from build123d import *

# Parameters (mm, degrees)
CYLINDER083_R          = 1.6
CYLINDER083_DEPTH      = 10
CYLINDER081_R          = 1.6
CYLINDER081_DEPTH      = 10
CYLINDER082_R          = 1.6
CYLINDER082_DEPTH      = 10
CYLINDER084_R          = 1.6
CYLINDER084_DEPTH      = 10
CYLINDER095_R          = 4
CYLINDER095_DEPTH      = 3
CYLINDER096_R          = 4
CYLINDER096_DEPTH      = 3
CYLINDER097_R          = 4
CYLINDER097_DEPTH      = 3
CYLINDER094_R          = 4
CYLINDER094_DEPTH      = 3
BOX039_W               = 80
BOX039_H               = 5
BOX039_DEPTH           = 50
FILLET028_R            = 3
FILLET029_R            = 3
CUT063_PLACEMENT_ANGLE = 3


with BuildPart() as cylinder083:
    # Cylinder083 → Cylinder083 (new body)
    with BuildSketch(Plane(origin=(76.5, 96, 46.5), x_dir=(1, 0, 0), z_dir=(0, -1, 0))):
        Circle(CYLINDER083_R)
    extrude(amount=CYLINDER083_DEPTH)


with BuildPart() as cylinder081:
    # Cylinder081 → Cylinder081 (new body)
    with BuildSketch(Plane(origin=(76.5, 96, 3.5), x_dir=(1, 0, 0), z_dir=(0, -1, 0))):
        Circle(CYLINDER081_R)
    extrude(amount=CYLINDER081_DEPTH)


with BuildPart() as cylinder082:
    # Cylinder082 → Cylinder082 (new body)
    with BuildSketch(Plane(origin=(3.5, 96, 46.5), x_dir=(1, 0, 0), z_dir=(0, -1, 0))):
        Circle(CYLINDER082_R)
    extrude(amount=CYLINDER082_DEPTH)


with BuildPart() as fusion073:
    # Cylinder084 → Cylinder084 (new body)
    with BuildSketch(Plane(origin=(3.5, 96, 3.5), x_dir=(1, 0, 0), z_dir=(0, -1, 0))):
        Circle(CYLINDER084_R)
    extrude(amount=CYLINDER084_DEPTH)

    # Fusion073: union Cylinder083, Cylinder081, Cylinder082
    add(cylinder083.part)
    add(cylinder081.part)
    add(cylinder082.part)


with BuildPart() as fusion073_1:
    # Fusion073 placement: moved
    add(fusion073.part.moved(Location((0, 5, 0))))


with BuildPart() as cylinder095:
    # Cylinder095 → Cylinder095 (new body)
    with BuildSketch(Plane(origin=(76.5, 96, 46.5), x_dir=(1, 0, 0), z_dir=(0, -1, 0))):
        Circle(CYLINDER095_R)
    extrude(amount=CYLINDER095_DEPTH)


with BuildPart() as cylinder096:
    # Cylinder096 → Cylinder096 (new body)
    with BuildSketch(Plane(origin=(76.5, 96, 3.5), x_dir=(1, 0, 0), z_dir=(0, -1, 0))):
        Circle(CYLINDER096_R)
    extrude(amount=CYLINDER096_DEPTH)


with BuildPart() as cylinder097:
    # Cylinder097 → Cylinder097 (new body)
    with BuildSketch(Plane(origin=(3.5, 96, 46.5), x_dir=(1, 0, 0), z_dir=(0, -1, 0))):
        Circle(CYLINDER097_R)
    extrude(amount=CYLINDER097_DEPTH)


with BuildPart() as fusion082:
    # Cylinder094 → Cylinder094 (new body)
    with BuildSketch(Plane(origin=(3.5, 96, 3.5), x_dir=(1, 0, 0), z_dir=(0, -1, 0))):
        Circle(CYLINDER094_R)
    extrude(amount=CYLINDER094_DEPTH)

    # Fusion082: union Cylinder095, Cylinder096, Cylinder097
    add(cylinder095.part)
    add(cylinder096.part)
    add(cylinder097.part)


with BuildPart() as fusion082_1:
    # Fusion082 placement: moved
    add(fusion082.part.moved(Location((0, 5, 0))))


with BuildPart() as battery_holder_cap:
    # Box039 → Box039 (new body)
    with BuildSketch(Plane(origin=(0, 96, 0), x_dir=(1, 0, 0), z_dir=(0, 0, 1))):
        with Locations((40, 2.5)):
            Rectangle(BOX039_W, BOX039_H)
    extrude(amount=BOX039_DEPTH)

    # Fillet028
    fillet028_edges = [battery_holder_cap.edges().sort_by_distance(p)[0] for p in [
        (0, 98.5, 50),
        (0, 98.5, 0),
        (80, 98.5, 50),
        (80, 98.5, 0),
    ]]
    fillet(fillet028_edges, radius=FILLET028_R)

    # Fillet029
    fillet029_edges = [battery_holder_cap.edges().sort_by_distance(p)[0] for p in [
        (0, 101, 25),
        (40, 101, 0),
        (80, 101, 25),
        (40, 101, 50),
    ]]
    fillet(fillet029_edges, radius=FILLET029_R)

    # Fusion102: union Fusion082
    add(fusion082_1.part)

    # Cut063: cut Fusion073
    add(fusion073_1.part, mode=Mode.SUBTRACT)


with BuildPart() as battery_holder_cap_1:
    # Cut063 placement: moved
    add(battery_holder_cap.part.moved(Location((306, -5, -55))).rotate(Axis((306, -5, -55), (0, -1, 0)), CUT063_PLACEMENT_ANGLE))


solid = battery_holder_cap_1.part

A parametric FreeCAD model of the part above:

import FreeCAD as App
import Part
import Sketcher

V = App.Vector


def edges_at(feature, points):
    """Names of the edges that pass closest to the given points."""
    edges = feature.Shape.Edges
    near = lambda p: min(range(len(edges)), key=lambda i: edges[i].distToShape(Part.Vertex(*p))[0])
    return sorted({f"Edge{near(p) + 1}" for p in points})


def add_polygon(sketch, points):
    """Adds a closed chain of lines whose ends are joined by coincident constraints."""
    first, n = sketch.GeometryCount, len(points)
    for a, b in zip(points, points[1:] + points[:1]):
        sketch.addGeometry(Part.LineSegment(App.Vector(*a, 0), App.Vector(*b, 0)), False)
    for i in range(n):
        sketch.addConstraint(Sketcher.Constraint("Coincident", first + i, 2, first + (i + 1) % n, 1))

doc = App.newDocument("Part")
body = doc.addObject("PartDesign::Body", "Body")

# Sketch on XZ plane
sketch1 = body.newObject("Sketcher::SketchObject", "Sketch")
sketch1.AttachmentSupport = (doc.getObject("XZ_Plane"), [""])
sketch1.MapMode = "FlatFace"
sketch1.AttachmentOffset = App.Placement(V(0, 0, -96), App.Rotation())
sketch1.addGeometry(Part.Circle(V(76.5, 46.5, 0), V(0, 0, 1), 1.6), False)
sketch1.addConstraint([
    Sketcher.Constraint("Diameter", 0, 3.2),
    Sketcher.Constraint("DistanceX", -1, 1, 0, 3, 76.5),
    Sketcher.Constraint("DistanceY", -1, 1, 0, 3, 46.5),
])
pad1 = body.newObject("PartDesign::Pad", "Pad")
pad1.Profile = sketch1
pad1.Length = 10
body2 = doc.addObject("PartDesign::Body", "Body001")

# Sketch on XZ plane
sketch2 = body2.newObject("Sketcher::SketchObject", "Sketch001")
sketch2.AttachmentSupport = (doc.getObject("XZ_Plane001"), [""])
sketch2.MapMode = "FlatFace"
sketch2.AttachmentOffset = App.Placement(V(0, 0, -96), App.Rotation())
sketch2.addGeometry(Part.Circle(V(76.5, 3.5, 0), V(0, 0, 1), 1.6), False)
sketch2.addConstraint([
    Sketcher.Constraint("Diameter", 0, 3.2),
    Sketcher.Constraint("DistanceX", -1, 1, 0, 3, 76.5),
    Sketcher.Constraint("DistanceY", -1, 1, 0, 3, 3.5),
])
pad2 = body2.newObject("PartDesign::Pad", "Pad001")
pad2.Profile = sketch2
pad2.Length = 10
body3 = doc.addObject("PartDesign::Body", "Body002")

# Sketch on XZ plane
sketch3 = body3.newObject("Sketcher::SketchObject", "Sketch002")
sketch3.AttachmentSupport = (doc.getObject("XZ_Plane002"), [""])
sketch3.MapMode = "FlatFace"
sketch3.AttachmentOffset = App.Placement(V(0, 0, -96), App.Rotation())
sketch3.addGeometry(Part.Circle(V(3.5, 46.5, 0), V(0, 0, 1), 1.6), False)
sketch3.addConstraint([
    Sketcher.Constraint("Diameter", 0, 3.2),
    Sketcher.Constraint("DistanceX", -1, 1, 0, 3, 3.5),
    Sketcher.Constraint("DistanceY", -1, 1, 0, 3, 46.5),
])
pad3 = body3.newObject("PartDesign::Pad", "Pad002")
pad3.Profile = sketch3
pad3.Length = 10
body4 = doc.addObject("PartDesign::Body", "Body003")
body4.AllowCompound = True

# Sketch on XZ plane
sketch4 = body4.newObject("Sketcher::SketchObject", "Sketch003")
sketch4.AttachmentSupport = (doc.getObject("XZ_Plane003"), [""])
sketch4.MapMode = "FlatFace"
sketch4.AttachmentOffset = App.Placement(V(0, 0, -96), App.Rotation())
sketch4.addGeometry(Part.Circle(V(3.5, 3.5, 0), V(0, 0, 1), 1.6), False)
sketch4.addConstraint([
    Sketcher.Constraint("Diameter", 0, 3.2),
    Sketcher.Constraint("DistanceX", -1, 1, 0, 3, 3.5),
    Sketcher.Constraint("DistanceY", -1, 1, 0, 3, 3.5),
])
pad4 = body4.newObject("PartDesign::Pad", "Pad003")
pad4.Profile = sketch4
pad4.Length = 10
doc.recompute()

boolean = body4.newObject("PartDesign::Boolean", "Boolean")
boolean.Type = "Fuse"
boolean.addObjects([body])
doc.recompute()

boolean2 = body4.newObject("PartDesign::Boolean", "Boolean001")
boolean2.Type = "Fuse"
boolean2.addObjects([body2])
doc.recompute()

boolean3 = body4.newObject("PartDesign::Boolean", "Boolean002")
boolean3.Type = "Fuse"
boolean3.addObjects([body3])
body5 = doc.addObject("PartDesign::Body", "Body004")
body5.AllowCompound = True
doc.recompute()

body4.Placement = App.Placement(V(0, 5, 0), App.Rotation(V(0, 0, 1), 0))
boolean4 = body5.newObject("PartDesign::Boolean", "Boolean003")
boolean4.Type = "Fuse"
boolean4.addObjects([body4])
body6 = doc.addObject("PartDesign::Body", "Body005")

# Sketch on XZ plane
sketch5 = body6.newObject("Sketcher::SketchObject", "Sketch004")
sketch5.AttachmentSupport = (doc.getObject("XZ_Plane005"), [""])
sketch5.MapMode = "FlatFace"
sketch5.AttachmentOffset = App.Placement(V(0, 0, -96), App.Rotation())
sketch5.addGeometry(Part.Circle(V(76.5, 46.5, 0), V(0, 0, 1), 4), False)
sketch5.addConstraint([
    Sketcher.Constraint("Diameter", 0, 8.0),
    Sketcher.Constraint("DistanceX", -1, 1, 0, 3, 76.5),
    Sketcher.Constraint("DistanceY", -1, 1, 0, 3, 46.5),
])
pad5 = body6.newObject("PartDesign::Pad", "Pad004")
pad5.Profile = sketch5
pad5.Length = 3
body7 = doc.addObject("PartDesign::Body", "Body006")

# Sketch on XZ plane
sketch6 = body7.newObject("Sketcher::SketchObject", "Sketch005")
sketch6.AttachmentSupport = (doc.getObject("XZ_Plane006"), [""])
sketch6.MapMode = "FlatFace"
sketch6.AttachmentOffset = App.Placement(V(0, 0, -96), App.Rotation())
sketch6.addGeometry(Part.Circle(V(76.5, 3.5, 0), V(0, 0, 1), 4), False)
sketch6.addConstraint([
    Sketcher.Constraint("Diameter", 0, 8.0),
    Sketcher.Constraint("DistanceX", -1, 1, 0, 3, 76.5),
    Sketcher.Constraint("DistanceY", -1, 1, 0, 3, 3.5),
])
pad6 = body7.newObject("PartDesign::Pad", "Pad005")
pad6.Profile = sketch6
pad6.Length = 3
body8 = doc.addObject("PartDesign::Body", "Body007")

# Sketch on XZ plane
sketch7 = body8.newObject("Sketcher::SketchObject", "Sketch006")
sketch7.AttachmentSupport = (doc.getObject("XZ_Plane007"), [""])
sketch7.MapMode = "FlatFace"
sketch7.AttachmentOffset = App.Placement(V(0, 0, -96), App.Rotation())
sketch7.addGeometry(Part.Circle(V(3.5, 46.5, 0), V(0, 0, 1), 4), False)
sketch7.addConstraint([
    Sketcher.Constraint("Diameter", 0, 8.0),
    Sketcher.Constraint("DistanceX", -1, 1, 0, 3, 3.5),
    Sketcher.Constraint("DistanceY", -1, 1, 0, 3, 46.5),
])
pad7 = body8.newObject("PartDesign::Pad", "Pad006")
pad7.Profile = sketch7
pad7.Length = 3
body9 = doc.addObject("PartDesign::Body", "Body008")
body9.AllowCompound = True

# Sketch on XZ plane
sketch8 = body9.newObject("Sketcher::SketchObject", "Sketch007")
sketch8.AttachmentSupport = (doc.getObject("XZ_Plane008"), [""])
sketch8.MapMode = "FlatFace"
sketch8.AttachmentOffset = App.Placement(V(0, 0, -96), App.Rotation())
sketch8.addGeometry(Part.Circle(V(3.5, 3.5, 0), V(0, 0, 1), 4), False)
sketch8.addConstraint([
    Sketcher.Constraint("Diameter", 0, 8.0),
    Sketcher.Constraint("DistanceX", -1, 1, 0, 3, 3.5),
    Sketcher.Constraint("DistanceY", -1, 1, 0, 3, 3.5),
])
pad8 = body9.newObject("PartDesign::Pad", "Pad007")
pad8.Profile = sketch8
pad8.Length = 3
doc.recompute()

boolean5 = body9.newObject("PartDesign::Boolean", "Boolean004")
boolean5.Type = "Fuse"
boolean5.addObjects([body6])
doc.recompute()

boolean6 = body9.newObject("PartDesign::Boolean", "Boolean005")
boolean6.Type = "Fuse"
boolean6.addObjects([body7])
doc.recompute()

boolean7 = body9.newObject("PartDesign::Boolean", "Boolean006")
boolean7.Type = "Fuse"
boolean7.addObjects([body8])
body10 = doc.addObject("PartDesign::Body", "Body009")
body10.AllowCompound = True
doc.recompute()

body9.Placement = App.Placement(V(0, 5, 0), App.Rotation(V(0, 0, 1), 0))
boolean8 = body10.newObject("PartDesign::Boolean", "Boolean007")
boolean8.Type = "Fuse"
boolean8.addObjects([body9])
body11 = doc.addObject("PartDesign::Body", "Body010")

# Sketch on XY plane
sketch9 = body11.newObject("Sketcher::SketchObject", "Sketch008")
sketch9.AttachmentSupport = (doc.getObject("XY_Plane010"), [""])
sketch9.MapMode = "FlatFace"
add_polygon(sketch9, [(0, 101), (0, 96), (80, 96), (80, 101)])  # lines 0-3
sketch9.addConstraint([
    Sketcher.Constraint("Vertical", 0),
    Sketcher.Constraint("Horizontal", 1),
    Sketcher.Constraint("Vertical", 2),
    Sketcher.Constraint("Horizontal", 3),
    Sketcher.Constraint("PointOnObject", 0, 2, -2),
    Sketcher.Constraint("DistanceX", 1, 1, 1, 2, 80.0),
    Sketcher.Constraint("DistanceY", 0, 2, 0, 1, 5.0),
    Sketcher.Constraint("DistanceY", -1, 1, 0, 2, 96.0),
])
pad9 = body11.newObject("PartDesign::Pad", "Pad008")
pad9.Profile = sketch9
pad9.Length = 50
doc.recompute()

fillet = body11.newObject("PartDesign::Fillet", "Fillet")
fillet.Base = (pad9, edges_at(pad9, [
    (0, 98.5, 50),
    (0, 98.5, 0),
    (80, 98.5, 50),
    (80, 98.5, 0),
]))
fillet.Radius = 3
doc.recompute()

fillet2 = body11.newObject("PartDesign::Fillet", "Fillet001")
fillet2.Base = (fillet, edges_at(fillet, [
    (0, 101, 25),
    (40, 101, 0),
    (80, 101, 25),
    (40, 101, 50),
]))
fillet2.Radius = 3
doc.recompute()

boolean9 = body11.newObject("PartDesign::Boolean", "Boolean008")
boolean9.Type = "Fuse"
boolean9.addObjects([body10])
doc.recompute()

boolean10 = body11.newObject("PartDesign::Boolean", "Boolean009")
boolean10.Type = "Cut"
boolean10.addObjects([body5])
body12 = doc.addObject("PartDesign::Body", "Body011")
doc.recompute()

body11.Placement = App.Placement(V(306, -5, -55), App.Rotation(V(0, -1, 0), 3))
boolean11 = body12.newObject("PartDesign::Boolean", "Boolean010")
boolean11.Type = "Fuse"
boolean11.addObjects([body11])

doc.recompute()
